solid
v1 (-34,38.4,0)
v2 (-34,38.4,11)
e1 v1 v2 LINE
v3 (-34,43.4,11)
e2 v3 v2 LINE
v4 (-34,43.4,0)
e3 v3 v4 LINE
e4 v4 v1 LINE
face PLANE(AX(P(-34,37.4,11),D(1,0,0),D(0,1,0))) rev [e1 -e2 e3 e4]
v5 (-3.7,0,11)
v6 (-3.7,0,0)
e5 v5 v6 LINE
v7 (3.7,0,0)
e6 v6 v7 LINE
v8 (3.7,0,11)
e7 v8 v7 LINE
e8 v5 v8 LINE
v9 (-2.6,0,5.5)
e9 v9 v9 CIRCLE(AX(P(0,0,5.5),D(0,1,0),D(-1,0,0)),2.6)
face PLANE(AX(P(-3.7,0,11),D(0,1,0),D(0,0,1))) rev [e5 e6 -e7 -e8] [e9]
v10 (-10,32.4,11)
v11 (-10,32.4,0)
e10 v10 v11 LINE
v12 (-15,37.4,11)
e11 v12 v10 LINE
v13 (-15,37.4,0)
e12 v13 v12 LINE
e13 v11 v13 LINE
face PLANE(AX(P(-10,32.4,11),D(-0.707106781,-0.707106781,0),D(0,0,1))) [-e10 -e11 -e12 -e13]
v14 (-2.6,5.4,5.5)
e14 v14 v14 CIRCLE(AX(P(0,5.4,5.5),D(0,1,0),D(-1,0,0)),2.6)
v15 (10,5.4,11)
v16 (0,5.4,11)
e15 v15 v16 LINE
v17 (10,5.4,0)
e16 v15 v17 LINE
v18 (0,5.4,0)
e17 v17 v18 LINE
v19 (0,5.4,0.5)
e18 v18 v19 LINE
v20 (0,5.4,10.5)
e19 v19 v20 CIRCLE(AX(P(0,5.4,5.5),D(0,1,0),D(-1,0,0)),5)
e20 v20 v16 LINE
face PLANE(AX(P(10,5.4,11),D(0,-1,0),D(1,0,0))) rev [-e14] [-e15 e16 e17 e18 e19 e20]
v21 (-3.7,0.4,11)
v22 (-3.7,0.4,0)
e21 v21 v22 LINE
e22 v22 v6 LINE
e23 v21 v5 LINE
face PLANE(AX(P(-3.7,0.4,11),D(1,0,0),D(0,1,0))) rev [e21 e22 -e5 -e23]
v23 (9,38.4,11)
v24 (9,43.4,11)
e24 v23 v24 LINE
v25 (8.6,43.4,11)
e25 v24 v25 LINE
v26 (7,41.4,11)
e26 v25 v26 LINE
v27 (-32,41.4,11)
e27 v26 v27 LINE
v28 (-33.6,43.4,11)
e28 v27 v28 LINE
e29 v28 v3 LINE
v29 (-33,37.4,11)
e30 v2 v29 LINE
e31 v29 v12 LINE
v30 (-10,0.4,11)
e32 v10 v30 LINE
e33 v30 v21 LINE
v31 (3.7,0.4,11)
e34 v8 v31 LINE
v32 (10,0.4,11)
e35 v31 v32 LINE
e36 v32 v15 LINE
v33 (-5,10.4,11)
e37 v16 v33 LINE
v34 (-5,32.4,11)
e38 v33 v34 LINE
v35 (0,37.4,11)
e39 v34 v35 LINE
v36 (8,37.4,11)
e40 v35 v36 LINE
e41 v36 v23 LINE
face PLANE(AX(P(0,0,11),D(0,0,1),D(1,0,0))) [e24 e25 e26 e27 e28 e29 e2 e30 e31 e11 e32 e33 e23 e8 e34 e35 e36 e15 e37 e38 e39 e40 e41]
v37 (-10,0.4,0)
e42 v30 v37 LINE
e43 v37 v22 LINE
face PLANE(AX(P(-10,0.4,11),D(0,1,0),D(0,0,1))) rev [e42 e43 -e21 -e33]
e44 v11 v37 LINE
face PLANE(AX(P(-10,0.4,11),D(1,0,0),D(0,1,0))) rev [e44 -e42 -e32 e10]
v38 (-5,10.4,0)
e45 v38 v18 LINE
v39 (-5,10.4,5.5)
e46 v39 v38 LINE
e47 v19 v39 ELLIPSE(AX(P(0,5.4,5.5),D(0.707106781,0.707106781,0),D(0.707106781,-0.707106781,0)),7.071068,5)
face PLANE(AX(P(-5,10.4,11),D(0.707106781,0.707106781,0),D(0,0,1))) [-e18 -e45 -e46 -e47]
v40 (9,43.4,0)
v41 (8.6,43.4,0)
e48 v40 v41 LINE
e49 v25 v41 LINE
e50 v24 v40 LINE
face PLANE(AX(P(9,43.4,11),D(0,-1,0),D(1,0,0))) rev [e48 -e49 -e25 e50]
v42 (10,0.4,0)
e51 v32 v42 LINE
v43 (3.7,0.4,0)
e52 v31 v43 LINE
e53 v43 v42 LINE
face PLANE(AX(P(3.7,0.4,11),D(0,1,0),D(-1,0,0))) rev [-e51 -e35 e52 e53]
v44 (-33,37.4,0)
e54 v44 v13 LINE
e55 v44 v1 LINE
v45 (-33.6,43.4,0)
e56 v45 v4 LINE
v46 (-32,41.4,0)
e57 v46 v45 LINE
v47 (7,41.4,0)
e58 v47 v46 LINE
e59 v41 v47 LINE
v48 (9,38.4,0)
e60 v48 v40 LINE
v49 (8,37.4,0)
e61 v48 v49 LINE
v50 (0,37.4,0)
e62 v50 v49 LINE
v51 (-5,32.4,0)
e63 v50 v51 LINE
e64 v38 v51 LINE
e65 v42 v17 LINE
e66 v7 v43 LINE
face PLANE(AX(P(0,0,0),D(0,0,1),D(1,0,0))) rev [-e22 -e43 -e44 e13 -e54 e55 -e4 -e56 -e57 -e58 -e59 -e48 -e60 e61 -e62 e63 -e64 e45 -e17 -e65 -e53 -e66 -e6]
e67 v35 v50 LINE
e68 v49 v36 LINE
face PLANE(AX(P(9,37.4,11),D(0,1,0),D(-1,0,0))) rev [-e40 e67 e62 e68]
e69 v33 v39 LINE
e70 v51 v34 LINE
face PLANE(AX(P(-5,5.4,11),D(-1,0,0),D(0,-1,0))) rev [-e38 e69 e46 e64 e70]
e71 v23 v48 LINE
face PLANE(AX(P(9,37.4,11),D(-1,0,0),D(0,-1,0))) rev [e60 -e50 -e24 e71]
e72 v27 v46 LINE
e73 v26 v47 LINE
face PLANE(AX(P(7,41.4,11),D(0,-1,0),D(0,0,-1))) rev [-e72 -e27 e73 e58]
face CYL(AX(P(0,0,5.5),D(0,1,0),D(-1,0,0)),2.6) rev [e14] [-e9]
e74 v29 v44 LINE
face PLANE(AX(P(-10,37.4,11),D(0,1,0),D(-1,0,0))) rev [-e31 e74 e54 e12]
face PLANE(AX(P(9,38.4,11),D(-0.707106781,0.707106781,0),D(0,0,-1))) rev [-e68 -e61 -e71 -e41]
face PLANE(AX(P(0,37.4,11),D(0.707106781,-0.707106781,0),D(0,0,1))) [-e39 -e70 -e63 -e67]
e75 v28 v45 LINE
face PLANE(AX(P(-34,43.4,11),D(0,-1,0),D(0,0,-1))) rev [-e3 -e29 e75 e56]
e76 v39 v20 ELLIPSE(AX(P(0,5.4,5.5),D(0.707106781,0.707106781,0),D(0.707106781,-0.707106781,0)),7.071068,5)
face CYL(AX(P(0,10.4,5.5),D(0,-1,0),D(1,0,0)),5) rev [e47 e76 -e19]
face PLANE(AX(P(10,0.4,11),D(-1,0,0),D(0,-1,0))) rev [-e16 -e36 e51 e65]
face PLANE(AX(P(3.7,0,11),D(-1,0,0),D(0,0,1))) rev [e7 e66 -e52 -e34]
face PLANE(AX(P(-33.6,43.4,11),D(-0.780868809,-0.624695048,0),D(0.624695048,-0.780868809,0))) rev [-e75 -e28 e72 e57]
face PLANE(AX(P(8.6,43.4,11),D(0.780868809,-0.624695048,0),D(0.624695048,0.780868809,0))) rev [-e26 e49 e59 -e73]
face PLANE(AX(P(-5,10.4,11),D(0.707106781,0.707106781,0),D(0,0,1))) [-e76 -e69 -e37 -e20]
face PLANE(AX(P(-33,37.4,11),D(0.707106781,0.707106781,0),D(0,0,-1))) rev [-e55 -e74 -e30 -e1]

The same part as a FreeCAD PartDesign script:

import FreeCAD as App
import Part
import Sketcher
from FreeCAD import Vector
Q = App.Units.Quantity


def edges_at(feature, points):
    """Names of the edges that pass closest to the given points."""
    edges = feature.Shape.Edges
    near = lambda p: min(range(len(edges)), key=lambda i: edges[i].distToShape(Part.Vertex(*p))[0])
    return sorted({f"Edge{near(p) + 1}" for p in points})


def add_polygon(sketch, points):
    """Adds a closed chain of lines whose ends are joined by coincident constraints."""
    first, n = sketch.GeometryCount, len(points)
    for a, b in zip(points, points[1:] + points[:1]):
        sketch.addGeometry(Part.LineSegment(App.Vector(*a, 0), App.Vector(*b, 0)), False)
    for i in range(n):
        sketch.addConstraint(Sketcher.Constraint("Coincident", first + i, 2, first + (i + 1) % n, 1))

doc = App.newDocument("Part")
body = doc.addObject("PartDesign::Body", "Body")

# Sketch on XY plane
sketch1 = body.newObject("Sketcher::SketchObject", "Sketch")
sketch1.AttachmentSupport = (doc.getObject("XY_Plane"), [""])
sketch1.MapMode = "FlatFace"
add_polygon(sketch1, [(-10, 0.4), (-3.7, 0.4), (-3.7, 0), (3.7, 0), (3.7, 0.4), (10, 0.4), (10, 5.4), (-5, 5.4), (-5, 37.4), (9, 37.4), (9, 43.4), (8.6, 43.4), (7, 41.4), (-32, 41.4), (-33.6, 43.4), (-34, 43.4), (-34, 37.4), (-10, 37.4)])  # lines 0-17
sketch1.addConstraint(Sketcher.Constraint("Horizontal", 0))
sketch1.addConstraint(Sketcher.Constraint("Vertical", 1))
sketch1.addConstraint(Sketcher.Constraint("Horizontal", 2))
sketch1.addConstraint(Sketcher.Constraint("Vertical", 3))
sketch1.addConstraint(Sketcher.Constraint("Horizontal", 4))
sketch1.addConstraint(Sketcher.Constraint("Vertical", 5))
sketch1.addConstraint(Sketcher.Constraint("Horizontal", 6))
sketch1.addConstraint(Sketcher.Constraint("Vertical", 7))
sketch1.addConstraint(Sketcher.Constraint("Horizontal", 8))
sketch1.addConstraint(Sketcher.Constraint("Vertical", 9))
sketch1.addConstraint(Sketcher.Constraint("Horizontal", 10))
sketch1.addConstraint(Sketcher.Constraint("Horizontal", 12))
sketch1.addConstraint(Sketcher.Constraint("Horizontal", 14))
sketch1.addConstraint(Sketcher.Constraint("Vertical", 15))
sketch1.addConstraint(Sketcher.Constraint("Horizontal", 16))
sketch1.addConstraint(Sketcher.Constraint("Vertical", 17))
sketch1.addConstraint(Sketcher.Constraint("Symmetric", 1, 2, 2, 2, -1, 1))
sketch1.addConstraint(Sketcher.Constraint("Symmetric", 4, 2, 17, 2, -2))
sketch1.addConstraint(Sketcher.Constraint("Horizontal", 10, 2, 13, 2))
sketch1.addConstraint(Sketcher.Constraint("Horizontal", 8, 2, 15, 2))
sketch1.addConstraint(Sketcher.Constraint("Equal", 10, 14))
sketch1.addConstraint(Sketcher.Constraint("Equal", 14, 1))
sketch1.addConstraint(Sketcher.Constraint("Equal", 11, 13))
sketch1.addConstraint(Sketcher.Constraint("DistanceX", 6, 2, 6, 1, Q("15 mm")))
sketch1.addConstraint(Sketcher.Constraint("DistanceX", 8, 1, 8, 2, Q("14 mm")))
sketch1.addConstraint(Sketcher.Constraint("DistanceX", 12, 2, 12, 1, Q("39 mm")))
sketch1.addConstraint(Sketcher.Constraint("DistanceX", 16, 1, 16, 2, Q("24 mm")))
sketch1.addConstraint(Sketcher.Constraint("DistanceY", 5, 1, 5, 2, Q("5 mm")))
sketch1.addConstraint(Sketcher.Constraint("DistanceY", 7, 1, 7, 2, Q("32 mm")))
sketch1.addConstraint(Sketcher.Constraint("DistanceY", 9, 1, 9, 2, Q("6 mm")))
sketch1.addConstraint(Sketcher.Constraint("DistanceX", 0, 1, 0, 2, Q("6.3 mm")))
sketch1.addConstraint(Sketcher.Constraint("DistanceX", 2, 1, 2, 2, Q("7.4 mm")))
sketch1.addConstraint(Sketcher.Constraint("DistanceX", 10, 2, 10, 1, Q("0.4 mm")))
sketch1.addConstraint(Sketcher.Constraint("DistanceY", 11, 2, 10, 2, Q("2 mm")))
pad1 = body.newObject("PartDesign::Pad", "Pad")
pad1.Profile = sketch1
pad1.Length = 11
doc.recompute()

chamfer = body.newObject("PartDesign::Chamfer", "Chamfer")
chamfer.Base = (pad1, edges_at(pad1, [(-10, 37.4, 5.5), (-5, 37.4, 5.5), (-5, 5.4, 5.5)]))
chamfer.Size = 5
doc.recompute()

chamfer2 = body.newObject("PartDesign::Chamfer", "Chamfer001")
chamfer2.Base = (chamfer, edges_at(chamfer, [(-34, 37.4, 5.5), (9, 37.4, 5.5)]))
chamfer2.Size = 1

# Sketch on XZ plane
sketch2 = body.newObject("Sketcher::SketchObject", "Sketch001")
sketch2.AttachmentSupport = (doc.getObject("XZ_Plane"), [""])
sketch2.MapMode = "FlatFace"
sketch2.AttachmentOffset = App.Placement(Vector(0, 0, -5.4), App.Rotation())
sketch2.addGeometry(Part.Circle(Vector(0, 5.5, 0), Vector(0, 0, 1), 2.6), False)
sketch2.addConstraint(Sketcher.Constraint("PointOnObject", 0, 3, -2))
sketch2.addConstraint(Sketcher.Constraint("Diameter", 0, Q("5.2 mm")))
sketch2.addConstraint(Sketcher.Constraint("DistanceY", -1, 1, 0, 3, Q("5.5 mm")))
pocket1 = body.newObject("PartDesign::Pocket", "Pocket")
pocket1.Profile = sketch2
pocket1.Type = "ThroughAll"
pocket1.Reversed = True

# Sketch on XZ plane
sketch3 = body.newObject("Sketcher::SketchObject", "Sketch002")
sketch3.AttachmentSupport = (doc.getObject("XZ_Plane"), [""])
sketch3.MapMode = "FlatFace"
sketch3.AttachmentOffset = App.Placement(Vector(0, 0, -5.4), App.Rotation())
sketch3.addGeometry(Part.Circle(Vector(0, 6, 0), Vector(0, 0, 1), 5), False)
sketch3.addConstraint(Sketcher.Constraint("PointOnObject", 0, 3, -2))
sketch3.addConstraint(Sketcher.Constraint("Diameter", 0, Q("10 mm")))
sketch3.addConstraint(Sketcher.Constraint("DistanceY", -1, 1, 0, 3, Q("5.5 mm")))
pocket2 = body.newObject("PartDesign::Pocket", "Pocket001")
pocket2.Profile = sketch3
pocket2.Length = 5

doc.recompute()
